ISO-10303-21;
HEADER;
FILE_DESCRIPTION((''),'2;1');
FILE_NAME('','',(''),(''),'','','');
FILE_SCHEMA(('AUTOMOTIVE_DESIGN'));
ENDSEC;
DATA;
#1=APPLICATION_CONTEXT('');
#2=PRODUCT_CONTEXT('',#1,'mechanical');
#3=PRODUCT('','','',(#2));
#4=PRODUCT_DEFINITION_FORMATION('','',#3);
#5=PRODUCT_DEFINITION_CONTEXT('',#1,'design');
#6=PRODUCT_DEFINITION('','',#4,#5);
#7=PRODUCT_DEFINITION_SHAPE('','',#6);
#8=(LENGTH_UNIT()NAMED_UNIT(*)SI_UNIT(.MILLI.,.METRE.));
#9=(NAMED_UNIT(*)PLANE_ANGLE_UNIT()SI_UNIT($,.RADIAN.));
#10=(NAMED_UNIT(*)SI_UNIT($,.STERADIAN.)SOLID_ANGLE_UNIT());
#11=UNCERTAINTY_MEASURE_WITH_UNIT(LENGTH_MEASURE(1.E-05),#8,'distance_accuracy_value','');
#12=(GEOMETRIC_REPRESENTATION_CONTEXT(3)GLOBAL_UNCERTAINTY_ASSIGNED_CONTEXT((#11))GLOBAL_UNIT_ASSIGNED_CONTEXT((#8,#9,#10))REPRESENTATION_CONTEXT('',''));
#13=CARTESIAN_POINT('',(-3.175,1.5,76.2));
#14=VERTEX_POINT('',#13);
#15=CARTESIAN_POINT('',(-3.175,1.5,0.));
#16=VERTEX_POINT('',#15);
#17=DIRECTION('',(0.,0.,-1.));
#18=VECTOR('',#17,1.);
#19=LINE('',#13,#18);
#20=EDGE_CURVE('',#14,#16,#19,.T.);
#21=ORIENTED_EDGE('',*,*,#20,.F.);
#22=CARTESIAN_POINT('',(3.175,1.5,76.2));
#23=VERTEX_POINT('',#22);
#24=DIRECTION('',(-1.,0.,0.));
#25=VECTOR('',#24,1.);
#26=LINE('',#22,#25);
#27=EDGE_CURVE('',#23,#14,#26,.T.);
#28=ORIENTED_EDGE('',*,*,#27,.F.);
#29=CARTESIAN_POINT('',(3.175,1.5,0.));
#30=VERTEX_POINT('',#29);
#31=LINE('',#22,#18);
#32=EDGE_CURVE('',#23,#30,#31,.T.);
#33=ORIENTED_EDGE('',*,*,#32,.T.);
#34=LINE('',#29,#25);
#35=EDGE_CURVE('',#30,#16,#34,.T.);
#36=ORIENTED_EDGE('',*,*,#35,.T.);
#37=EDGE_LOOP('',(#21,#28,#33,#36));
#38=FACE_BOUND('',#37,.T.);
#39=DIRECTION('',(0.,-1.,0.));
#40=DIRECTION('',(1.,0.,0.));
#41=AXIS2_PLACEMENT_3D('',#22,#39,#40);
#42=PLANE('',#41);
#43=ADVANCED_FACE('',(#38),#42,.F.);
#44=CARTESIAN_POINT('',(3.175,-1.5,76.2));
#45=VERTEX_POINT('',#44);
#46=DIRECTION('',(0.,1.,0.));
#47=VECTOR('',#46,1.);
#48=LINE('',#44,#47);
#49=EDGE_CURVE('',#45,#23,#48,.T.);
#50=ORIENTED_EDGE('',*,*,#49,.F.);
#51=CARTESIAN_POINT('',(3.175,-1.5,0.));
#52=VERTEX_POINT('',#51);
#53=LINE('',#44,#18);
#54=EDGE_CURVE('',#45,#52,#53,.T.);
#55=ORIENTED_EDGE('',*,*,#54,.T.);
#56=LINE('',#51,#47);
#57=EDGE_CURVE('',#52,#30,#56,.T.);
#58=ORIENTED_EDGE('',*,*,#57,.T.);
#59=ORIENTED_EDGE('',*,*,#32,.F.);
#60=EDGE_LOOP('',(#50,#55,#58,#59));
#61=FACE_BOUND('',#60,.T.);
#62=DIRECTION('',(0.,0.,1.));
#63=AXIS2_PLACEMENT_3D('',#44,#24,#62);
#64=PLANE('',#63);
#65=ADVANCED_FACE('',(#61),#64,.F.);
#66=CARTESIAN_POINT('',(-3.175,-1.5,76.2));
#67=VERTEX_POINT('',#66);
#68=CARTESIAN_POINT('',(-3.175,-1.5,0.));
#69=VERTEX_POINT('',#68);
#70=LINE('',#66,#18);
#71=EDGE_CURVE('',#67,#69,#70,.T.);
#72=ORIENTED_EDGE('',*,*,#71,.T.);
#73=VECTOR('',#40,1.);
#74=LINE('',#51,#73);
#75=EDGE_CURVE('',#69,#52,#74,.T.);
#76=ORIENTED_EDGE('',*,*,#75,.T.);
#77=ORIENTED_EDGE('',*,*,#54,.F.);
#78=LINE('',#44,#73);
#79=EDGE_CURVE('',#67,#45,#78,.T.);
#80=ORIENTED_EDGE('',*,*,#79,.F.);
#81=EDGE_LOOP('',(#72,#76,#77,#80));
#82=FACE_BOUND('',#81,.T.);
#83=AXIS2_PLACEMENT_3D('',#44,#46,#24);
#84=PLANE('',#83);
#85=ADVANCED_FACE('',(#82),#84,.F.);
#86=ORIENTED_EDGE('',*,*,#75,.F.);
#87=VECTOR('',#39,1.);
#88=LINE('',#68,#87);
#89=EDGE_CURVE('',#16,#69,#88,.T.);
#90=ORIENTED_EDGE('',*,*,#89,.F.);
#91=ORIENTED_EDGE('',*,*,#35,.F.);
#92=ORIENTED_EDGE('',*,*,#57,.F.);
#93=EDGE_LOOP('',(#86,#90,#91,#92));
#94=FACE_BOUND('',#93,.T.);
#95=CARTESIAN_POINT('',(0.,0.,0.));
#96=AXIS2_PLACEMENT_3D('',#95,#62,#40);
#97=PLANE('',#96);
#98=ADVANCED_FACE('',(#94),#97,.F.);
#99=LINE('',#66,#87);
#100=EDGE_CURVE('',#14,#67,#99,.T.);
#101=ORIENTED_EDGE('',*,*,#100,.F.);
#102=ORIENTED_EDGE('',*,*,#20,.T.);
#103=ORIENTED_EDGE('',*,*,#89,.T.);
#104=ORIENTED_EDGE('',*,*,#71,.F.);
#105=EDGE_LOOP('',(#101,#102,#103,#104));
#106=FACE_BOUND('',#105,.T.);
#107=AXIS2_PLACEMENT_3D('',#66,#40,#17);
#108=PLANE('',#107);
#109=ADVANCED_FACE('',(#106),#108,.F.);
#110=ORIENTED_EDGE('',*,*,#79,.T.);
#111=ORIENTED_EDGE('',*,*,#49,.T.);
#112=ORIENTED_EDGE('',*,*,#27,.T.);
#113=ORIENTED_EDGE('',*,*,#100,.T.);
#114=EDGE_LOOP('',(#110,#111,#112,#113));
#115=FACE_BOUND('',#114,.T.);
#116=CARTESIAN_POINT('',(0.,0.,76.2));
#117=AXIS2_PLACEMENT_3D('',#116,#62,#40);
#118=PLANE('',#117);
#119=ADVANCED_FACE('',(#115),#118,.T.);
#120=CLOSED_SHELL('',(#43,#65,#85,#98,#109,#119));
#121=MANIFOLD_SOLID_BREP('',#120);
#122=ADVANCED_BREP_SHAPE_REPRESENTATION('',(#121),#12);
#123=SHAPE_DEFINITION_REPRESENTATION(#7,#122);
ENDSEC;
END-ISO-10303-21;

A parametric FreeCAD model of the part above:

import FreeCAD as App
import Part
import Sketcher

V = App.Vector
Q = App.Units.Quantity


def add_polygon(sketch, points):
    """Adds a closed chain of lines whose ends are joined by coincident constraints."""
    first, n = sketch.GeometryCount, len(points)
    for a, b in zip(points, points[1:] + points[:1]):
        sketch.addGeometry(Part.LineSegment(App.Vector(*a, 0), App.Vector(*b, 0)), False)
    for i in range(n):
        sketch.addConstraint(Sketcher.Constraint("Coincident", first + i, 2, first + (i + 1) % n, 1))

doc = App.newDocument("Part")
body = doc.addObject("PartDesign::Body", "Body")

# Sketch on XY plane
sketch1 = doc.addObject("Sketcher::SketchObject", "Sketch")
body.addObject(sketch1)
sketch1.AttachmentSupport = (doc.XY_Plane, [""])
sketch1.MapMode = "FlatFace"
add_polygon(sketch1, [(-3.2, 1.5), (-3.2, -1.5), (3.2, -1.5), (3.2, 1.5)])  # lines 0-3
sketch1.addConstraint([
    Sketcher.Constraint("Vertical", 0),
    Sketcher.Constraint("Horizontal", 1),
    Sketcher.Constraint("Vertical", 2),
    Sketcher.Constraint("Horizontal", 3),
    Sketcher.Constraint("Symmetric", 0, 2, 2, 2, -1, 1),
    Sketcher.Constraint("DistanceX", 1, 1, 1, 2, Q("0.25 in")),
    Sketcher.Constraint("DistanceY", 0, 2, 0, 1, Q("3 mm")),
])
pad1 = doc.addObject("PartDesign::Pad", "Pad")
body.addObject(pad1)
pad1.Profile = sketch1
pad1.Length = Q("3 in")

doc.recompute()
